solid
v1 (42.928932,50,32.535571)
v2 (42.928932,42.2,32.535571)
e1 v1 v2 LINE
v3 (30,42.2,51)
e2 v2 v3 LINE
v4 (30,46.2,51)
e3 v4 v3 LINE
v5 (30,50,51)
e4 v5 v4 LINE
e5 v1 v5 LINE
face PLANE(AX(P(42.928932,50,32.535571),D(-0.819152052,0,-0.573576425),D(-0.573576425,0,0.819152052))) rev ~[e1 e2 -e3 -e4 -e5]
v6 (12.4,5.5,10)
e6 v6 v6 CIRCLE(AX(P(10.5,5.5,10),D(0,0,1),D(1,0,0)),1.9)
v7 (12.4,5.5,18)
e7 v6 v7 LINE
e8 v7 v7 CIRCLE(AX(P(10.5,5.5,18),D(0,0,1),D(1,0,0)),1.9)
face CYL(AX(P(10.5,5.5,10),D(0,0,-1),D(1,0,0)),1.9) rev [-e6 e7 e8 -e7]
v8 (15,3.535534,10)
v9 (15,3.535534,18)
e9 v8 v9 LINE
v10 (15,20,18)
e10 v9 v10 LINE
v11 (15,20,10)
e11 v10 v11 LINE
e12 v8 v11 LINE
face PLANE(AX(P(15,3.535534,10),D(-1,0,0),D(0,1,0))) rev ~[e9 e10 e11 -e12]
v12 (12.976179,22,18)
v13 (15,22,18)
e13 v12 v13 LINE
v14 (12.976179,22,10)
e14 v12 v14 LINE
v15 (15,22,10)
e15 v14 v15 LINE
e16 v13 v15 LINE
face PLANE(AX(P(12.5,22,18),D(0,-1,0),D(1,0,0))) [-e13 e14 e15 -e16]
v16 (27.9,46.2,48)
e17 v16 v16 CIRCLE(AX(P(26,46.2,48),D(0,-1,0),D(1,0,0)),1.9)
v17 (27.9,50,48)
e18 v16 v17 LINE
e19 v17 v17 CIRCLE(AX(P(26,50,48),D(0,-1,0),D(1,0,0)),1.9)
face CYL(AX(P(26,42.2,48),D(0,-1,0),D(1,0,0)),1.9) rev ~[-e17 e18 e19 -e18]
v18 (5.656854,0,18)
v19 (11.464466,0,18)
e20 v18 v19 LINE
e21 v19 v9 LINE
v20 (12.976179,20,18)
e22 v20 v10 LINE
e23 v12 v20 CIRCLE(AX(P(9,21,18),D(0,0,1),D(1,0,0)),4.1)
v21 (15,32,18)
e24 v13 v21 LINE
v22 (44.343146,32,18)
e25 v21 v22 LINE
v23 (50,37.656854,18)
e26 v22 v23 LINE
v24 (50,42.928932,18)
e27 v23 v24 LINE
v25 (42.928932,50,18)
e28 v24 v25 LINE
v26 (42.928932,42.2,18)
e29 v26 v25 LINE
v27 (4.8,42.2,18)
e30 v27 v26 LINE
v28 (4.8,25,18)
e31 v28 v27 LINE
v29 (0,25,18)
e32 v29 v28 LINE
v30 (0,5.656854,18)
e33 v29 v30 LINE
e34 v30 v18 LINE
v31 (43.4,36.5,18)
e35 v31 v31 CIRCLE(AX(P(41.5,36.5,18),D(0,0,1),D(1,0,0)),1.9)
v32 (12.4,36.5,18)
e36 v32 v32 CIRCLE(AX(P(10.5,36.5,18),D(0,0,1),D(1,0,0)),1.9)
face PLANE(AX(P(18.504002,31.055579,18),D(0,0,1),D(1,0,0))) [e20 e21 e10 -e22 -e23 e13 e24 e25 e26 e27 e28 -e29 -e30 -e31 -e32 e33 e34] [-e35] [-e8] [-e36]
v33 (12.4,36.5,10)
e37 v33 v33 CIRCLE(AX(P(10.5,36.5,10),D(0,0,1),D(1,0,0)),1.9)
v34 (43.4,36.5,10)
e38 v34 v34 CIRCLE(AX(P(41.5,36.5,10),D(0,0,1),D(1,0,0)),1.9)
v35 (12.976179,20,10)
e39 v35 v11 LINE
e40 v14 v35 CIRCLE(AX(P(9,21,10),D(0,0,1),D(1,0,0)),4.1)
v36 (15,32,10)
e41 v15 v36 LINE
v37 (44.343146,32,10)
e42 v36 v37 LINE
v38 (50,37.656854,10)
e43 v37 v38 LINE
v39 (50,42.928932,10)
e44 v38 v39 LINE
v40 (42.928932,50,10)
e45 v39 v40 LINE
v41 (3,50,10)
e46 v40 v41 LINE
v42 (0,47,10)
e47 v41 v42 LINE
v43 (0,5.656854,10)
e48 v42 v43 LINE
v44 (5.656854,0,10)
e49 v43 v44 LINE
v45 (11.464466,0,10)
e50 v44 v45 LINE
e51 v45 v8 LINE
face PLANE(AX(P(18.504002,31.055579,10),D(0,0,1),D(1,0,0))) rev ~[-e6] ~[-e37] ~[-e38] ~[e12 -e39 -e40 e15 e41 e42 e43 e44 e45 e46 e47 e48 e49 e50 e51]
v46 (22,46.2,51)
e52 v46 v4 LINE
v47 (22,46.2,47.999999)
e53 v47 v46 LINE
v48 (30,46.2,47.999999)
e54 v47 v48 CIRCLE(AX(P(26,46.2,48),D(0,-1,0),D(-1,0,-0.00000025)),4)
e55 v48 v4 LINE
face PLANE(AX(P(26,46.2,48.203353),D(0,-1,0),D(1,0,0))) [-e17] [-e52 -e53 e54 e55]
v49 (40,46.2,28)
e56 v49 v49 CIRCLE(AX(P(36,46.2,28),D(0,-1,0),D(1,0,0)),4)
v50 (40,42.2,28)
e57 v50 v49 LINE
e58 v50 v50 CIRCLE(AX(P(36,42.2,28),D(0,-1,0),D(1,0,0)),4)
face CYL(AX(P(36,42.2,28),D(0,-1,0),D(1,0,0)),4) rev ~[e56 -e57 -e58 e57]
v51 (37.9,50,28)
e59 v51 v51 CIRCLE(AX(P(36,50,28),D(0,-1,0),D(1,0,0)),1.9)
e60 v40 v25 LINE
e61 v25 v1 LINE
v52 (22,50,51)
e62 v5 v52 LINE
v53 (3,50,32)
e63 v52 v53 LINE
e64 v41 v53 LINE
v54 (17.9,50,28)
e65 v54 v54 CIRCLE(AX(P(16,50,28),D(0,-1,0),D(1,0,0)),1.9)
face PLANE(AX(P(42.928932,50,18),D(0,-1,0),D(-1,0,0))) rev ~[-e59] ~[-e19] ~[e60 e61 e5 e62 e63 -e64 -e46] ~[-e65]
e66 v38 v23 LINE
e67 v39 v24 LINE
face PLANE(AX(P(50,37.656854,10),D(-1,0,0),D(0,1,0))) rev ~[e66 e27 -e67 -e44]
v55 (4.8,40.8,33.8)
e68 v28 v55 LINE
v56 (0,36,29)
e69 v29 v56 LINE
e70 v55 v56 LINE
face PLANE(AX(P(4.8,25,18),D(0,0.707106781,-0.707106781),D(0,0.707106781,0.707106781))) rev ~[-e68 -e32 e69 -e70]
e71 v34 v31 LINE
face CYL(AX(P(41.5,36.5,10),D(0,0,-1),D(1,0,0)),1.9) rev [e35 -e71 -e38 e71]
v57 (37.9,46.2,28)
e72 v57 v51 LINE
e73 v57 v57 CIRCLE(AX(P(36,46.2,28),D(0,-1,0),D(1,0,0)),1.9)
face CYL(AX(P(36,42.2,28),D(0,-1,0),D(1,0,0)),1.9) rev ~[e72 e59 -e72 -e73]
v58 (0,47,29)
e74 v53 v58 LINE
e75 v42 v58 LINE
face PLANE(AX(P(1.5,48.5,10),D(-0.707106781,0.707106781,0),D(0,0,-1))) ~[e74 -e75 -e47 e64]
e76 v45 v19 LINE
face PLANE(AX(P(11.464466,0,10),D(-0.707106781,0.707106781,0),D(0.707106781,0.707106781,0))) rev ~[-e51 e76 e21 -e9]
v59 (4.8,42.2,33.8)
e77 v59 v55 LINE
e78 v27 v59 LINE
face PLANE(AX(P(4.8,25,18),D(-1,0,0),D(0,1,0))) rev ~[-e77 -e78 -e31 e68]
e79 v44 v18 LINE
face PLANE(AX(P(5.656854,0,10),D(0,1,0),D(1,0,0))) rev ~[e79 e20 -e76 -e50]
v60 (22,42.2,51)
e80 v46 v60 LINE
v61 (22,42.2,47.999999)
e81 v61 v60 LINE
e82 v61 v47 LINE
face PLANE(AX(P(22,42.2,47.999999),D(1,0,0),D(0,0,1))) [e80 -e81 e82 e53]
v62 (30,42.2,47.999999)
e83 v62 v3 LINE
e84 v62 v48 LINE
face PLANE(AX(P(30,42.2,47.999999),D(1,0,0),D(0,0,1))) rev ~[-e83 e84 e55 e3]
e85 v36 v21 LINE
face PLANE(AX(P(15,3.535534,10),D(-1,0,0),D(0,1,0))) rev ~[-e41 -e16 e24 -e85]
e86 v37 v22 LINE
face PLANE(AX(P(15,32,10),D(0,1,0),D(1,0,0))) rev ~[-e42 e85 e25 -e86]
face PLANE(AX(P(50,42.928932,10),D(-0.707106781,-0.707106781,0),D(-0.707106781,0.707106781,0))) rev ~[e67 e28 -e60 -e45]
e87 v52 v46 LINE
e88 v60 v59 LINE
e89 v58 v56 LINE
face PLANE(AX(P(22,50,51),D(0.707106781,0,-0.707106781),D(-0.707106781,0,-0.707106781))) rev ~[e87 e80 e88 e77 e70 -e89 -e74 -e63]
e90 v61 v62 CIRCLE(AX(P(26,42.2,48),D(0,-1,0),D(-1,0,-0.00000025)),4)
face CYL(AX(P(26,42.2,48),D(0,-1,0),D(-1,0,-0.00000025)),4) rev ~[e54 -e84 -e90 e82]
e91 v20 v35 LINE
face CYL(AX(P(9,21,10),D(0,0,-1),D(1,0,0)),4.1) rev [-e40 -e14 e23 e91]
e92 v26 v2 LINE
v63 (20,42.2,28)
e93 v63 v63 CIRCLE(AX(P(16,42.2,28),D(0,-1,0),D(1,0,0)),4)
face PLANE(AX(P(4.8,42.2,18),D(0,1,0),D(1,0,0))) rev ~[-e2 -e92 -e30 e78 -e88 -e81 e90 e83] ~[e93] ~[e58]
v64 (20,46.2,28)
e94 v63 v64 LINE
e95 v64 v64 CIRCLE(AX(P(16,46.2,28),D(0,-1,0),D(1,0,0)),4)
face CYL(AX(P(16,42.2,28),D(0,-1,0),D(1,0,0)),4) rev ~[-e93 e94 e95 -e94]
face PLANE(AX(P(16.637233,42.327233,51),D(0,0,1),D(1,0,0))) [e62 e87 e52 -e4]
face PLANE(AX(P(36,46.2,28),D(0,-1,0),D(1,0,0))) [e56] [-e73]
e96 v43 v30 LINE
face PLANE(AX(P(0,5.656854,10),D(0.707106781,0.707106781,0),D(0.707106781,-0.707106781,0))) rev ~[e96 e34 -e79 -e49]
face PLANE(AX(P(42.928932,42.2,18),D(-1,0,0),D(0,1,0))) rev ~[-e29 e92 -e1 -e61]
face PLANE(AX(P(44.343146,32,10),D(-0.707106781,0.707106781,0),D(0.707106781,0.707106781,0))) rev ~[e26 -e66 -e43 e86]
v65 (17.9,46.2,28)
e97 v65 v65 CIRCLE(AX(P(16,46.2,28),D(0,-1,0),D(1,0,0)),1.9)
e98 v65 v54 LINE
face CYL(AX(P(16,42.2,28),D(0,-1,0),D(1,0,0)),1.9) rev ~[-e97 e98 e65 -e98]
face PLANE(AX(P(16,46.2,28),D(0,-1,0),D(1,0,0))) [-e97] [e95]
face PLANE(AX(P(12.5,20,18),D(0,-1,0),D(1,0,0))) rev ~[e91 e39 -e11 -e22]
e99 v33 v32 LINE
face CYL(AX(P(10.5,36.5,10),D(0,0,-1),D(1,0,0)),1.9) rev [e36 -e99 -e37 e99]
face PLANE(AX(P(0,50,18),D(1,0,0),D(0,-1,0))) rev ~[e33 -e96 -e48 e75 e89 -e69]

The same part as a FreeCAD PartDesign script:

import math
import FreeCAD as App
import Part
import Sketcher
Q = App.Units.Quantity


def edges_at(feature, points):
    """Names of the edges that pass closest to the given points."""
    edges = feature.Shape.Edges
    near = lambda p: min(range(len(edges)), key=lambda i: edges[i].distToShape(Part.Vertex(*p))[0])
    return sorted({f"Edge{near(p) + 1}" for p in points})


def add_polygon(sketch, points):
    """Adds a closed chain of lines whose ends are joined by coincident constraints."""
    first, n = sketch.GeometryCount, len(points)
    for a, b in zip(points, points[1:] + points[:1]):
        sketch.addGeometry(Part.LineSegment(App.Vector(*a, 0), App.Vector(*b, 0)), False)
    for i in range(n):
        sketch.addConstraint(Sketcher.Constraint("Coincident", first + i, 2, first + (i + 1) % n, 1))

doc = App.newDocument("Part")
body = doc.addObject("PartDesign::Body", "Body")

# Sketch on XY plane
sketch1 = body.newObject("Sketcher::SketchObject", "Sketch")
sketch1.AttachmentSupport = (doc.getObject("XY_Plane"), [""])
sketch1.MapMode = "FlatFace"
sketch1.AttachmentOffset = App.Placement(App.Vector(0, 0, 10), App.Rotation())
add_polygon(sketch1, [(0, 50), (0, 5.7), (5.7, 0), (11.5, 0), (15, 3.5), (15, 32), (44.3, 32), (50, 37.7), (50, 42.9), (42.9, 50)])  # lines 0-9
sketch1.addGeometry(Part.Circle(App.Vector(10.5, 5.5, 0), App.Vector(0, 0, 1), 1.9), False)  # 10
sketch1.addGeometry(Part.Circle(App.Vector(9, 21, 0), App.Vector(0, 0, 1), 4.1), False)  # 11
sketch1.addGeometry(Part.Circle(App.Vector(10.5, 36.5, 0), App.Vector(0, 0, 1), 1.9), False)  # 12
sketch1.addGeometry(Part.Circle(App.Vector(41.5, 36.5, 0), App.Vector(0, 0, 1), 1.9), False)  # 13
sketch1.addConstraint([
    Sketcher.Constraint("Vertical", 0),
    Sketcher.Constraint("Horizontal", 2),
    Sketcher.Constraint("Vertical", 4),
    Sketcher.Constraint("Horizontal", 5),
    Sketcher.Constraint("Vertical", 7),
    Sketcher.Constraint("Horizontal", 9),
    Sketcher.Constraint("Equal", 10, 12),
    Sketcher.Constraint("Equal", 12, 13),
    Sketcher.Constraint("PointOnObject", 0, 2, -2),
    Sketcher.Constraint("PointOnObject", 1, 2, -1),
    Sketcher.Constraint("Perpendicular", 1, 3),
    Sketcher.Constraint("Parallel", 3, 6),
    Sketcher.Constraint("Perpendicular", 6, 8),
    Sketcher.Constraint("Horizontal", 12, 3, 13, 3),
    Sketcher.Constraint("Vertical", 10, 3, 12, 3),
    Sketcher.Constraint("Equal", 1, 6),
    Sketcher.Constraint("Diameter", 10, Q("3.8 mm")),
    Sketcher.Constraint("Diameter", 11, Q("8.2 mm")),
    Sketcher.Constraint("Angle", 1, Q("-45 deg")),
    Sketcher.Constraint("Distance", 1, Q("8 mm")),
    Sketcher.Constraint("Distance", 3, Q("5 mm")),
    Sketcher.Constraint("Distance", 8, Q("10 mm")),
    Sketcher.Constraint("DistanceX", -1, 1, 11, 3, Q("9 mm")),
    Sketcher.Constraint("DistanceY", -1, 1, 11, 3, Q("21 mm")),
    Sketcher.Constraint("DistanceX", -1, 1, 3, 2, Q("15 mm")),
    Sketcher.Constraint("DistanceY", -1, 1, 4, 2, Q("32 mm")),
    Sketcher.Constraint("DistanceX", -1, 1, 6, 2, Q("50 mm")),
    Sketcher.Constraint("DistanceY", -1, 1, 8, 2, Q("50 mm")),
    Sketcher.Constraint("DistanceY", 10, 3, 12, 3, Q("31 mm")),
    Sketcher.Constraint("DistanceX", 12, 3, 13, 3, Q("31 mm")),
    Sketcher.Constraint("DistanceX", -1, 1, 10, 3, Q("10.5 mm")),
    Sketcher.Constraint("DistanceY", -1, 1, 10, 3, Q("5.5 mm")),
])
pad1 = body.newObject("PartDesign::Pad", "Pad")
pad1.Profile = sketch1
pad1.Length = 8

# Sketch on XY plane
sketch2 = body.newObject("Sketcher::SketchObject", "Sketch001")
sketch2.AttachmentSupport = (doc.getObject("XY_Plane"), [""])
sketch2.MapMode = "FlatFace"
sketch2.AttachmentOffset = App.Placement(App.Vector(0, 0, 18), App.Rotation())
add_polygon(sketch2, [(42.9, 50), (0, 50), (0, 25), (4.8, 25), (4.8, 42.2), (42.9, 42.2)])  # lines 0-5
sketch2.addConstraint([
    Sketcher.Constraint("Horizontal", 0),
    Sketcher.Constraint("Vertical", 1),
    Sketcher.Constraint("Horizontal", 2),
    Sketcher.Constraint("Vertical", 3),
    Sketcher.Constraint("Horizontal", 4),
    Sketcher.Constraint("Vertical", 5),
    Sketcher.Constraint("PointOnObject", 0, 2, -2),
    Sketcher.Constraint("DistanceY", 1, 2, 1, 1, Q("25 mm")),
    Sketcher.Constraint("DistanceX", 2, 1, 2, 2, Q("4.8 mm")),
    Sketcher.Constraint("DistanceY", 3, 1, 3, 2, Q("17.2 mm")),
    Sketcher.Constraint("DistanceY", -1, 1, 0, 2, Q("50 mm")),
    Sketcher.Constraint("DistanceX", 0, 2, 0, 1, Q("42.928932 mm")),
])
pad2 = body.newObject("PartDesign::Pad", "Pad001")
pad2.Profile = sketch2
pad2.Length = 33

# Sketch on XZ plane
sketch3 = body.newObject("Sketcher::SketchObject", "Sketch002")
sketch3.AttachmentSupport = (doc.getObject("XZ_Plane"), [""])
sketch3.MapMode = "FlatFace"
sketch3.AttachmentOffset = App.Placement(App.Vector(0, 0, -42.2), App.Rotation())
sketch3.addGeometry([
    Part.Circle(App.Vector(26, 48, 0), App.Vector(0, 0, 1), 1.9),
    Part.Circle(App.Vector(16, 28, 0), App.Vector(0, 0, 1), 1.9),
    Part.Circle(App.Vector(36, 28, 0), App.Vector(0, 0, 1), 1.9),
], False)
sketch3.addConstraint([
    Sketcher.Constraint("Equal", 0, 1),
    Sketcher.Constraint("Equal", 1, 2),
    Sketcher.Constraint("Horizontal", 1, 3, 2, 3),
    Sketcher.Constraint("Diameter", 0, Q("3.8 mm")),
    Sketcher.Constraint("DistanceX", -1, 1, 0, 3, Q("26 mm")),
    Sketcher.Constraint("DistanceY", -1, 1, 0, 3, Q("48 mm")),
    Sketcher.Constraint("DistanceX", -1, 1, 1, 3, Q("16 mm")),
    Sketcher.Constraint("DistanceY", -1, 1, 1, 3, Q("28 mm")),
    Sketcher.Constraint("DistanceX", -1, 1, 2, 3, Q("36 mm")),
])
pocket1 = body.newObject("PartDesign::Pocket", "Pocket")
pocket1.Profile = sketch3
pocket1.Type = "ThroughAll"

# Sketch on YZ plane
sketch4 = body.newObject("Sketcher::SketchObject", "Sketch003")
sketch4.AttachmentSupport = (doc.getObject("YZ_Plane"), [""])
sketch4.MapMode = "FlatFace"
sketch4.AttachmentOffset = App.Placement(App.Vector(0, 0, 4.8), App.Rotation())
add_polygon(sketch4, [(25, 18), (42, 35), (42, 51), (25, 51)])  # lines 0-3
sketch4.addConstraint([
    Sketcher.Constraint("Vertical", 1),
    Sketcher.Constraint("Horizontal", 2),
    Sketcher.Constraint("Vertical", 3),
    Sketcher.Constraint("DistanceY", 3, 2, 3, 1, Q("33 mm")),
    Sketcher.Constraint("Angle", 0, Q("45 deg")),
    Sketcher.Constraint("DistanceX", 2, 2, 2, 1, Q("17.2 mm")),
    Sketcher.Constraint("DistanceY", -1, 1, 1, 2, Q("51 mm")),
    Sketcher.Constraint("DistanceX", -1, 1, 2, 2, Q("25 mm")),
])
pocket2 = body.newObject("PartDesign::Pocket", "Pocket001")
pocket2.Profile = sketch4
pocket2.Length = 5

# Sketch on XZ plane
sketch5 = body.newObject("Sketcher::SketchObject", "Sketch004")
sketch5.AttachmentSupport = (doc.getObject("XZ_Plane"), [""])
sketch5.MapMode = "FlatFace"
sketch5.AttachmentOffset = App.Placement(App.Vector(0, 0, -50), App.Rotation())
add_polygon(sketch5, [(43, 33), (30, 51), (43, 51)])  # lines 0-2
add_polygon(sketch5, [(22, 51), (0, 29), (0, 51)])  # lines 3-5
sketch5.addConstraint([
    Sketcher.Constraint("Horizontal", 1),
    Sketcher.Constraint("Vertical", 2),
    Sketcher.Constraint("Vertical", 4),
    Sketcher.Constraint("Horizontal", 5),
    Sketcher.Constraint("PointOnObject", 3, 2, -2),
    Sketcher.Constraint("Horizontal", 1, 2, 4, 2),
    Sketcher.Constraint("Equal", 5, 4),
    Sketcher.Constraint("DistanceX", 5, 1, 5, 2, Q("22 mm")),
    Sketcher.Constraint("Angle", 0, Q("124.999999 deg")),
    Sketcher.Constraint("DistanceX", -1, 1, 0, 2, Q("30 mm")),
    Sketcher.Constraint("DistanceY", -1, 1, 0, 2, Q("51 mm")),
    Sketcher.Constraint("DistanceY", 2, 2, 2, 1, Q("18.464429 mm")),
])
pocket3 = body.newObject("PartDesign::Pocket", "Pocket002")
pocket3.Profile = sketch5
pocket3.Type = "ThroughAll"
pocket3.Reversed = True
doc.recompute()

chamfer = body.newObject("PartDesign::Chamfer", "Chamfer")
chamfer.Base = (pocket3, edges_at(pocket3, [(0, 50, 19.5)]))
chamfer.Size = 3

# Sketch on XZ plane
sketch6 = body.newObject("Sketcher::SketchObject", "Sketch005")
sketch6.AttachmentSupport = (doc.getObject("XZ_Plane"), [""])
sketch6.MapMode = "FlatFace"
sketch6.AttachmentOffset = App.Placement(App.Vector(0, 0, -42.2), App.Rotation())
sketch6.addGeometry([
    Part.Circle(App.Vector(16, 28, 0), App.Vector(0, 0, 1), 4),  # 0
    Part.Circle(App.Vector(36, 28, 0), App.Vector(0, 0, 1), 4),  # 1
    Part.ArcOfCircle(Part.Circle(App.Vector(26, 48, 0), App.Vector(0, 0, 1), 4), math.radians(-180), math.radians(0)),  # 2
    Part.LineSegment(App.Vector(30, 48, 0), App.Vector(30, 51, 0)),  # 3
    Part.LineSegment(App.Vector(30, 51, 0), App.Vector(22, 51, 0)),  # 4
    Part.LineSegment(App.Vector(22, 51, 0), App.Vector(22, 48, 0)),  # 5
], False)
sketch6.addConstraint([
    Sketcher.Constraint("Tangent", 2, 2, 3, 1),
    Sketcher.Constraint("Coincident", 3, 2, 4, 1),
    Sketcher.Constraint("Coincident", 4, 2, 5, 1),
    Sketcher.Constraint("Tangent", 5, 2, 2, 1),
    Sketcher.Constraint("Vertical", 3),
    Sketcher.Constraint("Horizontal", 4),
    Sketcher.Constraint("Vertical", 5),
    Sketcher.Constraint("Equal", 0, 1),
    Sketcher.Constraint("Equal", 1, 2),
    Sketcher.Constraint("Horizontal", 0, 3, 1, 3),
    Sketcher.Constraint("Diameter", 0, Q("8 mm")),
    Sketcher.Constraint("DistanceY", 3, 1, 3, 2, Q("3.000001 mm")),
    Sketcher.Constraint("DistanceX", -1, 1, 0, 3, Q("16 mm")),
    Sketcher.Constraint("DistanceY", -1, 1, 0, 3, Q("28 mm")),
    Sketcher.Constraint("DistanceX", -1, 1, 1, 3, Q("36 mm")),
    Sketcher.Constraint("DistanceX", -1, 1, 2, 3, Q("26 mm")),
    Sketcher.Constraint("DistanceY", -1, 1, 2, 3, Q("48 mm")),
])
pocket4 = body.newObject("PartDesign::Pocket", "Pocket003")
pocket4.Profile = sketch6
pocket4.Length = 4

# Sketch on XY plane
sketch7 = body.newObject("Sketcher::SketchObject", "Sketch006")
sketch7.AttachmentSupport = (doc.getObject("XY_Plane"), [""])
sketch7.MapMode = "FlatFace"
sketch7.AttachmentOffset = App.Placement(App.Vector(0, 0, 18), App.Rotation())
add_polygon(sketch7, [(12.5, 22), (12.5, 20), (15, 20), (15, 22)])  # lines 0-3
sketch7.addConstraint([
    Sketcher.Constraint("Vertical", 0),
    Sketcher.Constraint("Horizontal", 1),
    Sketcher.Constraint("Vertical", 2),
    Sketcher.Constraint("Horizontal", 3),
    Sketcher.Constraint("DistanceY", 0, 2, 0, 1, Q("2 mm")),
    Sketcher.Constraint("DistanceX", 1, 1, 1, 2, Q("2.5 mm")),
    Sketcher.Constraint("DistanceY", -1, 1, 0, 2, Q("20 mm")),
    Sketcher.Constraint("DistanceX", -1, 1, 1, 2, Q("15 mm")),
])
pocket5 = body.newObject("PartDesign::Pocket", "Pocket004")
pocket5.Profile = sketch7
pocket5.Type = "ThroughAll"

doc.recompute()
